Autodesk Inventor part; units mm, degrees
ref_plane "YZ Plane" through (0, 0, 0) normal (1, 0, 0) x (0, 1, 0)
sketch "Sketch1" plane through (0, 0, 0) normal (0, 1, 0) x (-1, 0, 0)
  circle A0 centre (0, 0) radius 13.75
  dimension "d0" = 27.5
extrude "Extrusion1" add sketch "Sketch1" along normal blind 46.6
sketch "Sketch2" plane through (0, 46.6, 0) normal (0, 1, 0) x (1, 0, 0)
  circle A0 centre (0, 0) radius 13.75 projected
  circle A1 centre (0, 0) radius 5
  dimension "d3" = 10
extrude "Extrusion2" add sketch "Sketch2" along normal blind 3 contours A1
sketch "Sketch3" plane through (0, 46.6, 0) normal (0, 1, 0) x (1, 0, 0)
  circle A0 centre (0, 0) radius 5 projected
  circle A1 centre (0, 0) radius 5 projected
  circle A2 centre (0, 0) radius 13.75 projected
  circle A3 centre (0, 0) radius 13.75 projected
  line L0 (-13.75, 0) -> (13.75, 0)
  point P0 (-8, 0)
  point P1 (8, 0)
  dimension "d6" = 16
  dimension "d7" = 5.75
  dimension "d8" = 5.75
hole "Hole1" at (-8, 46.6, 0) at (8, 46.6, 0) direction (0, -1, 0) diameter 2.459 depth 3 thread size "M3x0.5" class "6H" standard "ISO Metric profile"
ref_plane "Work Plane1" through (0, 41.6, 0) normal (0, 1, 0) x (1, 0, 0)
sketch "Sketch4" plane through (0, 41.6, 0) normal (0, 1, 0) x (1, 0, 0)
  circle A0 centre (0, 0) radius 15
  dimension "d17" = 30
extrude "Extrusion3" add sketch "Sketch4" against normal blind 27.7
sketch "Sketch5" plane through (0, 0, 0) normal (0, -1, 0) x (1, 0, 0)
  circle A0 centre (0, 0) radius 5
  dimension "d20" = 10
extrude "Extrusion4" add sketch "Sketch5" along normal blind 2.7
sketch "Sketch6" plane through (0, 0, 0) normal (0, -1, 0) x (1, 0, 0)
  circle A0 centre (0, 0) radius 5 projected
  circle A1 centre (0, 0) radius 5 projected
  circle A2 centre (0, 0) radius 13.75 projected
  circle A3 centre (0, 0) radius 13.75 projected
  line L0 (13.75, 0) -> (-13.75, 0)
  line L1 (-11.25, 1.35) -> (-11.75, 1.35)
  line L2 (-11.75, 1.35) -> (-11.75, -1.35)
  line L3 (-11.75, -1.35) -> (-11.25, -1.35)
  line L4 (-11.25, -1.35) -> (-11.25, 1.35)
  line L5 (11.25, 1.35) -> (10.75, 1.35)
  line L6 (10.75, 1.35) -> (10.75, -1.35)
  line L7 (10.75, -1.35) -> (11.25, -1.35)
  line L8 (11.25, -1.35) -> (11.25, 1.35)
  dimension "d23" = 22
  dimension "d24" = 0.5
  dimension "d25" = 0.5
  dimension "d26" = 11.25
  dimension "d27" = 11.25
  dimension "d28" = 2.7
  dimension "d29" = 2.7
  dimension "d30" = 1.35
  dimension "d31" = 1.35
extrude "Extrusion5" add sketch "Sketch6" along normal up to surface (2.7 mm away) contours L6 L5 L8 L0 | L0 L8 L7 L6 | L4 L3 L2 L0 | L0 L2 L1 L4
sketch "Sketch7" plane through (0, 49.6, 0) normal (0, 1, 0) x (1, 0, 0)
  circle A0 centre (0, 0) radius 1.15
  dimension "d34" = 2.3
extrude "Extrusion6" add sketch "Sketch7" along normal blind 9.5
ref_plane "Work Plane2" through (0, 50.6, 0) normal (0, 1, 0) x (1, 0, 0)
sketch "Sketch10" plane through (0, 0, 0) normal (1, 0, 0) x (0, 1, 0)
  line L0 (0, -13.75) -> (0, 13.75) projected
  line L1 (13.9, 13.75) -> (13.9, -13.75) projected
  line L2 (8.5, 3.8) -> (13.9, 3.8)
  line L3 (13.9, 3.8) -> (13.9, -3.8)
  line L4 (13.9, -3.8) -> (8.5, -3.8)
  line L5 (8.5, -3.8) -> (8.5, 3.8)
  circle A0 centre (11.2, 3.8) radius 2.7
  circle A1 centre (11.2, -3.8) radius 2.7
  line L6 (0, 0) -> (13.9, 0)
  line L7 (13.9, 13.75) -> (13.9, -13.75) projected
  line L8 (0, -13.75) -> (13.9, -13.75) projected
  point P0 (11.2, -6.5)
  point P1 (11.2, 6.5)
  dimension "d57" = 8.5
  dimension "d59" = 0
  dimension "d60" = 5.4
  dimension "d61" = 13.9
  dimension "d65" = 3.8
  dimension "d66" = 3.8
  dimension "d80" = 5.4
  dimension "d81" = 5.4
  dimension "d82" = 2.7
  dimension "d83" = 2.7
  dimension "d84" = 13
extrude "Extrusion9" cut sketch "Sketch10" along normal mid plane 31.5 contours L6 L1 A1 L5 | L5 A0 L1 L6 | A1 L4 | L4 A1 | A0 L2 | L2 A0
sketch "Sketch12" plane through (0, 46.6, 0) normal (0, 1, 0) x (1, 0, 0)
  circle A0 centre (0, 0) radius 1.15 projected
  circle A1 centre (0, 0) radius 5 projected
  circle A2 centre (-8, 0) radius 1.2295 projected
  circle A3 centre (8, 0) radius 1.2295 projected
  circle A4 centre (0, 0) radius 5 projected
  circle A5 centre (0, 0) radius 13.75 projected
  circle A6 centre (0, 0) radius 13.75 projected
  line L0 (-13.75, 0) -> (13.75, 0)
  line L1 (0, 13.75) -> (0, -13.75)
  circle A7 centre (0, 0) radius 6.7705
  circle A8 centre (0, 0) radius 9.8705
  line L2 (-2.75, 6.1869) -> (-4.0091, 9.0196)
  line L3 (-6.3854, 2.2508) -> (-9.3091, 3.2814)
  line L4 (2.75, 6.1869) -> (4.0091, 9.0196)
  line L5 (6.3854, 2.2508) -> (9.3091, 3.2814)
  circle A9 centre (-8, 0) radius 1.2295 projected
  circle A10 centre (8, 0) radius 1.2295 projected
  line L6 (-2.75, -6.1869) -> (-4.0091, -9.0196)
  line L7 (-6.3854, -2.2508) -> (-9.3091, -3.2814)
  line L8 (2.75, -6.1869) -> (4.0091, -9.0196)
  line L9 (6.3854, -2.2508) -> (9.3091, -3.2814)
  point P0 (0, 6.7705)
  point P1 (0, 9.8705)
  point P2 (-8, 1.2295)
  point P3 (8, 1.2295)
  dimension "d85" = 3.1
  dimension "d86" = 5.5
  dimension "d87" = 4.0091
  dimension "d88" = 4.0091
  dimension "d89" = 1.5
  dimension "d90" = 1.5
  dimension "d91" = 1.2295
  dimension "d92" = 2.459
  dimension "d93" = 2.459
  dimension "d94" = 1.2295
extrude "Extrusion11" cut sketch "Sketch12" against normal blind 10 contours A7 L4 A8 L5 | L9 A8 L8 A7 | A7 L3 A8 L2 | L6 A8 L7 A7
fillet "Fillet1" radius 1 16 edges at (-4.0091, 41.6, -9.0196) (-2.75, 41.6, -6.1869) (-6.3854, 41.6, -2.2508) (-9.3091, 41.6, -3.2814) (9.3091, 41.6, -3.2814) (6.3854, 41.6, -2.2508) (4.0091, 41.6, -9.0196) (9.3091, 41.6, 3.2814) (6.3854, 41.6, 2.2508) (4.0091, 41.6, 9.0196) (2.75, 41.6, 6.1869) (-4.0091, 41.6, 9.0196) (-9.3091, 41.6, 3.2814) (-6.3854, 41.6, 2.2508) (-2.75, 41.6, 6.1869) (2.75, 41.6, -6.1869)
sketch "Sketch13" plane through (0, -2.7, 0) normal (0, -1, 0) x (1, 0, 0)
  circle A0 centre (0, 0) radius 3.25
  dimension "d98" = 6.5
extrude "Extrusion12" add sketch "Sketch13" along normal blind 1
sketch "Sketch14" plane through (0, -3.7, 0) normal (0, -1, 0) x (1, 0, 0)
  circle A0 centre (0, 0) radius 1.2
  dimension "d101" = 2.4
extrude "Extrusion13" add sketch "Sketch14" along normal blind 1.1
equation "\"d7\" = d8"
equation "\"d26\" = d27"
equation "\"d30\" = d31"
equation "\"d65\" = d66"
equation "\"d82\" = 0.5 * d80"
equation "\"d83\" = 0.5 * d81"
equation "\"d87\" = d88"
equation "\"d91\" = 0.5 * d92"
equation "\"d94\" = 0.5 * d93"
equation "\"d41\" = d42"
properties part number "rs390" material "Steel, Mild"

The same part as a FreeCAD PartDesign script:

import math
import FreeCAD as App
import Part
import Sketcher

V = App.Vector


def edges_at(feature, points):
    """Names of the edges that pass closest to the given points."""
    edges = feature.Shape.Edges
    near = lambda p: min(range(len(edges)), key=lambda i: edges[i].distToShape(Part.Vertex(*p))[0])
    return sorted({f"Edge{near(p) + 1}" for p in points})

doc = App.newDocument("Part")
body = doc.addObject("PartDesign::Body", "Body")

# Sketch on XZ plane
sketch1 = doc.addObject("Sketcher::SketchObject", "Sketch")
body.addObject(sketch1)
sketch1.AttachmentSupport = (doc.XZ_Plane, [""])
sketch1.MapMode = "FlatFace"
sketch1.addGeometry(Part.Circle(V(0, 0, 0), V(0, 0, 1), 14), False)
sketch1.addConstraint([
    Sketcher.Constraint("Coincident", 0, 3, -1, 1),
    Sketcher.Constraint("Diameter", 0, 27.5),
])
pad1 = doc.addObject("PartDesign::Pad", "Pad")
body.addObject(pad1)
pad1.Profile = sketch1
pad1.Length = 46.6
pad1.Reversed = True

# Sketch on XZ plane
sketch2 = doc.addObject("Sketcher::SketchObject", "Sketch001")
body.addObject(sketch2)
sketch2.AttachmentSupport = (doc.XZ_Plane, [""])
sketch2.MapMode = "FlatFace"
sketch2.AttachmentOffset = App.Placement(V(0, 0, -46.6), App.Rotation())
sketch2.addGeometry(Part.Circle(V(0, 0, 0), V(0, 0, 1), 5), False)
sketch2.addConstraint([
    Sketcher.Constraint("Coincident", 0, 3, -1, 1),
    Sketcher.Constraint("Diameter", 0, 10.0),
])
pad2 = doc.addObject("PartDesign::Pad", "Pad001")
body.addObject(pad2)
pad2.Profile = sketch2
pad2.Length = 3
pad2.Reversed = True

# Sketch on XZ plane
sketch3 = doc.addObject("Sketcher::SketchObject", "Sketch002")
body.addObject(sketch3)
sketch3.AttachmentSupport = (doc.XZ_Plane, [""])
sketch3.MapMode = "FlatFace"
sketch3.AttachmentOffset = App.Placement(V(0, 0, -46.6), App.Rotation())
sketch3.addGeometry([
    Part.Circle(V(-8, 0, 0), V(0, 0, 1), 1.2),
    Part.Circle(V(8, 0, 0), V(0, 0, 1), 1.2),
], False)
sketch3.addConstraint([
    Sketcher.Constraint("Equal", 0, 1),
    Sketcher.Constraint("Symmetric", 0, 3, 1, 3, -1, 1),
    Sketcher.Constraint("PointOnObject", 0, 3, -1),
    Sketcher.Constraint("Diameter", 0, 2.459),
    Sketcher.Constraint("DistanceX", 0, 3, -1, 1, 8.0),
])
doc.recompute()
hole = doc.addObject("PartDesign::Hole", "Hole")
body.addObject(hole)
hole.Profile = sketch3
hole.ThreadType = "None"
hole.Diameter = 2.459
hole.DepthType = "Dimension"
hole.Depth = 3
hole.DrillPoint = "Flat"
hole.Reversed = True

# Sketch on XZ plane
sketch4 = doc.addObject("Sketcher::SketchObject", "Sketch003")
body.addObject(sketch4)
sketch4.AttachmentSupport = (doc.XZ_Plane, [""])
sketch4.MapMode = "FlatFace"
sketch4.AttachmentOffset = App.Placement(V(0, 0, -41.6), App.Rotation())
sketch4.addGeometry(Part.Circle(V(0, 0, 0), V(0, 0, 1), 15), False)
sketch4.addConstraint([
    Sketcher.Constraint("Coincident", 0, 3, -1, 1),
    Sketcher.Constraint("Diameter", 0, 30.0),
])
pad3 = doc.addObject("PartDesign::Pad", "Pad002")
body.addObject(pad3)
pad3.Profile = sketch4
pad3.Length = 27.7

# Sketch on XZ plane
sketch5 = doc.addObject("Sketcher::SketchObject", "Sketch004")
body.addObject(sketch5)
sketch5.AttachmentSupport = (doc.XZ_Plane, [""])
sketch5.MapMode = "FlatFace"
sketch5.addGeometry(Part.Circle(V(0, 0, 0), V(0, 0, 1), 5), False)
sketch5.addConstraint([
    Sketcher.Constraint("Coincident", 0, 3, -1, 1),
    Sketcher.Constraint("Diameter", 0, 10.0),
])
pad4 = doc.addObject("PartDesign::Pad", "Pad003")
body.addObject(pad4)
pad4.Profile = sketch5
pad4.Length = 2.7

# Sketch on XZ plane
sketch6 = doc.addObject("Sketcher::SketchObject", "Sketch005")
body.addObject(sketch6)
sketch6.AttachmentSupport = (doc.XZ_Plane, [""])
sketch6.MapMode = "FlatFace"
sketch6.addGeometry([
    Part.LineSegment(V(10.8, 1.4, 0), V(10.8, -1.4, 0)),  # 0
    Part.LineSegment(V(10.8, -1.4, 0), V(11.2, -1.4, 0)),  # 1
    Part.LineSegment(V(11.2, -1.4, 0), V(11.2, 1.4, 0)),  # 2
    Part.LineSegment(V(11.2, 1.4, 0), V(10.8, 1.4, 0)),  # 3
    Part.LineSegment(V(-11.2, -1.4, 0), V(-11.2, 1.4, 0)),  # 4
    Part.LineSegment(V(-11.2, 1.4, 0), V(-11.8, 1.4, 0)),  # 5
    Part.LineSegment(V(-11.8, 1.4, 0), V(-11.8, -1.4, 0)),  # 6
    Part.LineSegment(V(-11.8, -1.4, 0), V(-11.2, -1.4, 0)),  # 7
], False)
sketch6.addConstraint([
    Sketcher.Constraint("Coincident", 0, 2, 1, 1),
    Sketcher.Constraint("Coincident", 1, 2, 2, 1),
    Sketcher.Constraint("Coincident", 2, 2, 3, 1),
    Sketcher.Constraint("Coincident", 3, 2, 0, 1),
    Sketcher.Constraint("Coincident", 4, 2, 5, 1),
    Sketcher.Constraint("Coincident", 5, 2, 6, 1),
    Sketcher.Constraint("Coincident", 6, 2, 7, 1),
    Sketcher.Constraint("Coincident", 7, 2, 4, 1),
    Sketcher.Constraint("Vertical", 0),
    Sketcher.Constraint("Horizontal", 1),
    Sketcher.Constraint("Vertical", 2),
    Sketcher.Constraint("Horizontal", 3),
    Sketcher.Constraint("Vertical", 4),
    Sketcher.Constraint("Horizontal", 5),
    Sketcher.Constraint("Vertical", 6),
    Sketcher.Constraint("Horizontal", 7),
    Sketcher.Constraint("Symmetric", 1, 2, 4, 2, -1, 1),
    Sketcher.Constraint("Horizontal", 3, 2, 4, 2),
    Sketcher.Constraint("Horizontal", 1, 2, 6, 2),
    Sketcher.Constraint("Equal", 3, 5),
    Sketcher.Constraint("DistanceX", 1, 1, 1, 2, 0.5),
    Sketcher.Constraint("DistanceY", 0, 2, 0, 1, 2.7),
    Sketcher.Constraint("DistanceX", 4, 2, 3, 2, 22.0),
])
pad5 = doc.addObject("PartDesign::Pad", "Pad004")
body.addObject(pad5)
pad5.Profile = sketch6
pad5.Length = 2.7

# Sketch on XZ plane
sketch7 = doc.addObject("Sketcher::SketchObject", "Sketch006")
body.addObject(sketch7)
sketch7.AttachmentSupport = (doc.XZ_Plane, [""])
sketch7.MapMode = "FlatFace"
sketch7.AttachmentOffset = App.Placement(V(0, 0, -49.6), App.Rotation())
sketch7.addGeometry(Part.Circle(V(0, 0, 0), V(0, 0, 1), 1.1), False)
sketch7.addConstraint([
    Sketcher.Constraint("Coincident", 0, 3, -1, 1),
    Sketcher.Constraint("Diameter", 0, 2.3),
])
pad6 = doc.addObject("PartDesign::Pad", "Pad005")
body.addObject(pad6)
pad6.Profile = sketch7
pad6.Length = 9.5
pad6.Reversed = True

# Sketch on YZ plane
sketch8 = doc.addObject("Sketcher::SketchObject", "Sketch007")
body.addObject(sketch8)
sketch8.AttachmentSupport = (doc.YZ_Plane, [""])
sketch8.MapMode = "FlatFace"
sketch8.addGeometry([
    Part.LineSegment(V(13.9, -3.8, 0), V(13.9, 3.8, 0)),
    Part.ArcOfCircle(Part.Circle(V(11.2, 3.8, 0), V(0, 0, 1), 2.7), math.radians(0), math.radians(180)),
    Part.LineSegment(V(8.5, 3.8, 0), V(8.5, -3.8, 0)),
    Part.ArcOfCircle(Part.Circle(V(11.2, -3.8, 0), V(0, 0, 1), 2.7), math.radians(180), math.radians(360)),
], False)
sketch8.addConstraint([
    Sketcher.Constraint("Tangent", 0, 2, 1, 1),
    Sketcher.Constraint("Tangent", 1, 2, 2, 1),
    Sketcher.Constraint("Tangent", 2, 2, 3, 1),
    Sketcher.Constraint("Tangent", 3, 2, 0, 1),
    Sketcher.Constraint("Vertical", 0),
    Sketcher.Constraint("Vertical", 2),
    Sketcher.Constraint("Radius", 1, 2.7),
    Sketcher.Constraint("DistanceY", -1, 1, 1, 3, 3.8),
    Sketcher.Constraint("DistanceY", 3, 3, -1, 1, 3.8),
    Sketcher.Constraint("DistanceX", -1, 1, 0, 2, 13.9),
])
pocket1 = doc.addObject("PartDesign::Pocket", "Pocket")
body.addObject(pocket1)
pocket1.Profile = sketch8
pocket1.Length = 31.5
pocket1.Midplane = True

# Sketch on XZ plane
sketch9 = doc.addObject("Sketcher::SketchObject", "Sketch008")
body.addObject(sketch9)
sketch9.AttachmentSupport = (doc.XZ_Plane, [""])
sketch9.MapMode = "FlatFace"
sketch9.AttachmentOffset = App.Placement(V(0, 0, -46.6), App.Rotation())
sketch9.addGeometry([
    Part.ArcOfCircle(Part.Circle(V(0, 0, 0), V(0, 0, 1), 6.8), math.radians(-66), math.radians(-19)),  # 0
    Part.LineSegment(V(6.4, -2.3, 0), V(9.3, -3.3, 0)),  # 1
    Part.ArcOfCircle(Part.Circle(V(0, 0, 0), V(0, 0, 1), 9.9), math.radians(-66), math.radians(-19)),  # 2
    Part.LineSegment(V(4, -9, 0), V(2.8, -6.2, 0)),  # 3
    Part.LineSegment(V(9.3, 3.3, 0), V(6.4, 2.3, 0)),  # 4
    Part.ArcOfCircle(Part.Circle(V(0, 0, 0), V(0, 0, 1), 6.8), math.radians(19), math.radians(66)),  # 5
    Part.LineSegment(V(2.8, 6.2, 0), V(4, 9, 0)),  # 6
    Part.ArcOfCircle(Part.Circle(V(0, 0, 0), V(0, 0, 1), 9.9), math.radians(19), math.radians(66)),  # 7
    Part.ArcOfCircle(Part.Circle(V(0, 0, 0), V(0, 0, 1), 6.8), math.radians(-161), math.radians(-114)),  # 8
    Part.LineSegment(V(-2.8, -6.2, 0), V(-4, -9, 0)),  # 9
    Part.ArcOfCircle(Part.Circle(V(0, 0, 0), V(0, 0, 1), 9.9), math.radians(-161), math.radians(-114)),  # 10
    Part.LineSegment(V(-9.3, -3.3, 0), V(-6.4, -2.3, 0)),  # 11
    Part.LineSegment(V(-4, 9, 0), V(-2.8, 6.2, 0)),  # 12
    Part.ArcOfCircle(Part.Circle(V(0, 0, 0), V(0, 0, 1), 6.8), math.radians(114), math.radians(161)),  # 13
    Part.LineSegment(V(-6.4, 2.3, 0), V(-9.3, 3.3, 0)),  # 14
    Part.ArcOfCircle(Part.Circle(V(0, 0, 0), V(0, 0, 1), 9.9), math.radians(114), math.radians(161)),  # 15
], False)
sketch9.addConstraint([
    Sketcher.Constraint("Coincident", 0, 2, 1, 1),
    Sketcher.Constraint("Coincident", 1, 2, 2, 2),
    Sketcher.Constraint("Coincident", 2, 1, 3, 1),
    Sketcher.Constraint("Coincident", 3, 2, 0, 1),
    Sketcher.Constraint("Coincident", 4, 2, 5, 1),
    Sketcher.Constraint("Coincident", 5, 2, 6, 1),
    Sketcher.Constraint("Coincident", 6, 2, 7, 2),
    Sketcher.Constraint("Coincident", 7, 1, 4, 1),
    Sketcher.Constraint("Coincident", 8, 2, 9, 1),
    Sketcher.Constraint("Coincident", 9, 2, 10, 2),
    Sketcher.Constraint("Coincident", 10, 1, 11, 1),
    Sketcher.Constraint("Coincident", 11, 2, 8, 1),
    Sketcher.Constraint("Coincident", 12, 2, 13, 1),
    Sketcher.Constraint("Coincident", 13, 2, 14, 1),
    Sketcher.Constraint("Coincident", 14, 2, 15, 2),
    Sketcher.Constraint("Coincident", 15, 1, 12, 1),
    Sketcher.Constraint("Coincident", 0, 3, -1, 1),
    Sketcher.Constraint("Coincident", 2, 3, -1, 1),
    Sketcher.Constraint("Coincident", 5, 3, -1, 1),
    Sketcher.Constraint("Coincident", 7, 3, -1, 1),
    Sketcher.Constraint("Coincident", 8, 3, -1, 1),
    Sketcher.Constraint("Coincident", 10, 3, -1, 1),
    Sketcher.Constraint("Coincident", 13, 3, -1, 1),
    Sketcher.Constraint("Coincident", 15, 3, -1, 1),
    Sketcher.Constraint("Equal", 0, 5),
    Sketcher.Constraint("Equal", 2, 7),
    Sketcher.Constraint("Equal", 5, 8),
    Sketcher.Constraint("Equal", 7, 10),
    Sketcher.Constraint("Equal", 8, 13),
    Sketcher.Constraint("Equal", 10, 15),
    Sketcher.Constraint("Parallel", 6, 9),
    Sketcher.Constraint("Parallel", 4, 11),
    Sketcher.Constraint("Parallel", 3, 12),
    Sketcher.Constraint("Parallel", 1, 14),
    Sketcher.Constraint("Horizontal", 3, 2, 8, 2),
    Sketcher.Constraint("Horizontal", 2, 1, 9, 2),
    Sketcher.Constraint("Horizontal", 1, 2, 10, 1),
    Sketcher.Constraint("Horizontal", 0, 2, 11, 2),
    Sketcher.Constraint("Horizontal", 5, 2, 12, 2),
    Sketcher.Constraint("Horizontal", 4, 2, 13, 2),
    Sketcher.Constraint("Vertical", 0, 2, 4, 2),
    Sketcher.Constraint("Vertical", 3, 2, 5, 2),
    Sketcher.Constraint("Distance", 1, 3.1),
    Sketcher.Constraint("DistanceX", 8, 2, 3, 2, 5.5),
    Sketcher.Constraint("DistanceX", -1, 1, 2, 1, 4.009),
    Sketcher.Constraint("Radius", 0, 6.7705),
    Sketcher.Constraint("DistanceX", 2, 1, 1, 2, 5.3),
    Sketcher.Constraint("DistanceY", 3, 2, 0, 2, 3.936),
])
pocket2 = doc.addObject("PartDesign::Pocket", "Pocket001")
body.addObject(pocket2)
pocket2.Profile = sketch9
pocket2.Length = 10
pocket2.Reversed = True
doc.recompute()

fillet = doc.addObject("PartDesign::Fillet", "Fillet")
body.addObject(fillet)
fillet.Base = (pocket2, edges_at(pocket2, [
    (-4.009, 41.6, -9.02),
    (-2.75, 41.6, -6.187),
    (-6.385, 41.6, -2.251),
    (-9.309, 41.6, -3.281),
    (9.309, 41.6, -3.281),
    (6.385, 41.6, -2.251),
    (4.009, 41.6, -9.02),
    (9.309, 41.6, 3.281),
    (6.385, 41.6, 2.251),
    (4.009, 41.6, 9.02),
    (2.75, 41.6, 6.187),
    (-4.009, 41.6, 9.02),
    (-9.309, 41.6, 3.281),
    (-6.385, 41.6, 2.251),
    (-2.75, 41.6, 6.187),
    (2.75, 41.6, -6.187),
]))
fillet.Radius = 1

# Sketch on XZ plane
sketch10 = doc.addObject("Sketcher::SketchObject", "Sketch009")
body.addObject(sketch10)
sketch10.AttachmentSupport = (doc.XZ_Plane, [""])
sketch10.MapMode = "FlatFace"
sketch10.AttachmentOffset = App.Placement(V(0, 0, 2.7), App.Rotation())
sketch10.addGeometry(Part.Circle(V(0, 0, 0), V(0, 0, 1), 3.2), False)
sketch10.addConstraint([
    Sketcher.Constraint("Coincident", 0, 3, -1, 1),
    Sketcher.Constraint("Diameter", 0, 6.5),
])
pad7 = doc.addObject("PartDesign::Pad", "Pad006")
body.addObject(pad7)
pad7.Profile = sketch10
pad7.Length = 1

# Sketch on XZ plane
sketch11 = doc.addObject("Sketcher::SketchObject", "Sketch010")
body.addObject(sketch11)
sketch11.AttachmentSupport = (doc.XZ_Plane, [""])
sketch11.MapMode = "FlatFace"
sketch11.AttachmentOffset = App.Placement(V(0, 0, 3.7), App.Rotation())
sketch11.addGeometry(Part.Circle(V(0, 0, 0), V(0, 0, 1), 1.2), False)
sketch11.addConstraint([
    Sketcher.Constraint("Coincident", 0, 3, -1, 1),
    Sketcher.Constraint("Diameter", 0, 2.4),
])
pad8 = doc.addObject("PartDesign::Pad", "Pad007")
body.addObject(pad8)
pad8.Profile = sketch11
pad8.Length = 1.1

doc.recompute()
